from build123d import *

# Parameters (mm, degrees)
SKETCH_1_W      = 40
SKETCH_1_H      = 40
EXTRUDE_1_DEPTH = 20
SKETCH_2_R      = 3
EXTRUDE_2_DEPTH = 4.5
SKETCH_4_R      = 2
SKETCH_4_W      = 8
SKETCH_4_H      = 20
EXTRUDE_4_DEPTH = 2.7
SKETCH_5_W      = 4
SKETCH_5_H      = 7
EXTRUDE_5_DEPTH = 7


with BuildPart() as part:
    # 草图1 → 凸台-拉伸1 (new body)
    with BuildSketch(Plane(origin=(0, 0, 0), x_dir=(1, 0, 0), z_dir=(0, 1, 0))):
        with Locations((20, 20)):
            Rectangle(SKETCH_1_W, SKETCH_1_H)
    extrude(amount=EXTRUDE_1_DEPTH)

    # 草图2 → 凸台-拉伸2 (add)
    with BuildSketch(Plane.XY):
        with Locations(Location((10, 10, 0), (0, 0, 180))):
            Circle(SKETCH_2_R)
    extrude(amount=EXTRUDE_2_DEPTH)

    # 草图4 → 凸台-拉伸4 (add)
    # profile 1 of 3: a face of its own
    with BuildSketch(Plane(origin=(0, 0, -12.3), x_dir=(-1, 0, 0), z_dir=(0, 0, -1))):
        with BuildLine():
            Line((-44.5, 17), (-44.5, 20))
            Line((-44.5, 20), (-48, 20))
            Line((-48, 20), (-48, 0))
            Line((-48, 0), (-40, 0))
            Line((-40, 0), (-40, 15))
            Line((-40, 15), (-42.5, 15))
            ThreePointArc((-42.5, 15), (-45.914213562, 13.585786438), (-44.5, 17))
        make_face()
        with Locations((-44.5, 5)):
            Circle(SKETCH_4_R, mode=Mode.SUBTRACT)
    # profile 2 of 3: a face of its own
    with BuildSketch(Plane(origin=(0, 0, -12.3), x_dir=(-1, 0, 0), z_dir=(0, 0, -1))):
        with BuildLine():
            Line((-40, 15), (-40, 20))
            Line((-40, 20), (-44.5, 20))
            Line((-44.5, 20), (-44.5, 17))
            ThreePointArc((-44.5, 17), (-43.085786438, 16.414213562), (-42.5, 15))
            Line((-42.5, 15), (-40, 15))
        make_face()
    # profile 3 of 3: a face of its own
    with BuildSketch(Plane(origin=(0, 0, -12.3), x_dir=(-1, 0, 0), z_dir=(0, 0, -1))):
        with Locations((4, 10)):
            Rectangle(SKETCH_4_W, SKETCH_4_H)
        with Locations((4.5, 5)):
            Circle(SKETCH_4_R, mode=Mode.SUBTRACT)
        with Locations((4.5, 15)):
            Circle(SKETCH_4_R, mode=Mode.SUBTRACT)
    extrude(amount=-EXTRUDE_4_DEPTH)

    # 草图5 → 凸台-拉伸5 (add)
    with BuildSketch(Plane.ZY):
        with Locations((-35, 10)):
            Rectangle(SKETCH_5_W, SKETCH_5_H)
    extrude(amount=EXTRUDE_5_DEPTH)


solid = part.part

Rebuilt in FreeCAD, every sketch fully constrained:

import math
import FreeCAD as App
import Part
import Sketcher
Q = App.Units.Quantity


def add_polygon(sketch, points):
    """Adds a closed chain of lines whose ends are joined by coincident constraints."""
    first, n = sketch.GeometryCount, len(points)
    for a, b in zip(points, points[1:] + points[:1]):
        sketch.addGeometry(Part.LineSegment(App.Vector(*a, 0), App.Vector(*b, 0)), False)
    for i in range(n):
        sketch.addConstraint(Sketcher.Constraint("Coincident", first + i, 2, first + (i + 1) % n, 1))

doc = App.newDocument("Part")
body = doc.addObject("PartDesign::Body", "Body")

# Sketch on XZ plane
sketch1 = doc.addObject("Sketcher::SketchObject", "Sketch")
body.addObject(sketch1)
sketch1.AttachmentSupport = (doc.XZ_Plane, [""])
sketch1.MapMode = "FlatFace"
add_polygon(sketch1, [(0, -40), (0, 0), (40, 0), (40, -40)])  # lines 0-3
sketch1.addConstraint([
    Sketcher.Constraint("Vertical", 0),
    Sketcher.Constraint("Horizontal", 1),
    Sketcher.Constraint("Vertical", 2),
    Sketcher.Constraint("Horizontal", 3),
    Sketcher.Constraint("Coincident", 0, 2, -1, 1),
    Sketcher.Constraint("Equal", 3, 0),
    Sketcher.Constraint("DistanceX", 1, 1, 1, 2, Q("40 mm")),
])
pad1 = doc.addObject("PartDesign::Pad", "Pad")
body.addObject(pad1)
pad1.Profile = sketch1
pad1.Length = 20
pad1.Reversed = True

# Sketch on XY plane
sketch2 = doc.addObject("Sketcher::SketchObject", "Sketch001")
body.addObject(sketch2)
sketch2.AttachmentSupport = (doc.XY_Plane, [""])
sketch2.MapMode = "FlatFace"
sketch2.addGeometry(Part.Circle(App.Vector(10, 10, 0), App.Vector(0, 0, 1), 3), False)
sketch2.addConstraint([
    Sketcher.Constraint("Diameter", 0, Q("6 mm")),
    Sketcher.Constraint("DistanceX", -1, 1, 0, 3, Q("10 mm")),
    Sketcher.Constraint("DistanceY", -1, 1, 0, 3, Q("10 mm")),
])
pad2 = doc.addObject("PartDesign::Pad", "Pad001")
body.addObject(pad2)
pad2.Profile = sketch2
pad2.Length = 4.5

# Sketch on XY plane
sketch3 = doc.addObject("Sketcher::SketchObject", "Sketch002")
body.addObject(sketch3)
sketch3.AttachmentSupport = (doc.XY_Plane, [""])
sketch3.MapMode = "FlatFace"
sketch3.AttachmentOffset = App.Placement(App.Vector(0, 0, -12.3), App.Rotation())
add_polygon(sketch3, [(48, 20), (48, 0), (40, 0), (40, 20)])  # lines 0-3
sketch3.addGeometry(Part.ArcOfCircle(Part.Circle(App.Vector(44.5, 15, 0), App.Vector(0, 0, 1), 2), math.radians(180), math.radians(450)), False)  # 4
sketch3.addGeometry(Part.ArcOfCircle(Part.Circle(App.Vector(44.5, 15, 0), App.Vector(0, 0, 1), 2), math.radians(90), math.radians(180)), False)  # 5
sketch3.addGeometry(Part.Circle(App.Vector(44.5, 5, 0), App.Vector(0, 0, 1), 2), False)  # 6
add_polygon(sketch3, [(0, 20), (0, 0), (-8, 0), (-8, 20)])  # lines 7-10
sketch3.addGeometry(Part.Circle(App.Vector(-4.5, 5, 0), App.Vector(0, 0, 1), 2), False)  # 11
sketch3.addGeometry(Part.Circle(App.Vector(-4.5, 15, 0), App.Vector(0, 0, 1), 2), False)  # 12
sketch3.addConstraint([
    Sketcher.Constraint("Tangent", 4, 1, 5, 2),
    Sketcher.Constraint("Coincident", 5, 1, 4, 2),
    Sketcher.Constraint("Vertical", 0),
    Sketcher.Constraint("Horizontal", 1),
    Sketcher.Constraint("Vertical", 2),
    Sketcher.Constraint("Horizontal", 3),
    Sketcher.Constraint("Vertical", 7),
    Sketcher.Constraint("Horizontal", 8),
    Sketcher.Constraint("Vertical", 9),
    Sketcher.Constraint("Horizontal", 10),
    Sketcher.Constraint("Coincident", 7, 2, -1, 1),
    Sketcher.Constraint("Equal", 5, 6),
    Sketcher.Constraint("Equal", 6, 11),
    Sketcher.Constraint("Equal", 11, 12),
    Sketcher.Constraint("PointOnObject", 0, 2, -1),
    Sketcher.Constraint("Horizontal", 6, 3, 11, 3),
    Sketcher.Constraint("Horizontal", 5, 3, 12, 3),
    Sketcher.Constraint("Horizontal", 12, 3, 4, 1),
    Sketcher.Constraint("Horizontal", 3, 2, 9, 2),
    Sketcher.Constraint("Vertical", 5, 3, 6, 3),
    Sketcher.Constraint("Vertical", 11, 3, 12, 3),
    Sketcher.Constraint("Vertical", 6, 3, 5, 1),
    Sketcher.Constraint("Equal", 3, 8),
    Sketcher.Constraint("Diameter", 6, Q("4 mm")),
    Sketcher.Constraint("DistanceX", 1, 2, 1, 1, Q("8 mm")),
    Sketcher.Constraint("DistanceY", 0, 2, 0, 1, Q("20 mm")),
    Sketcher.Constraint("DistanceY", -1, 1, 4, 3, Q("15 mm")),
    Sketcher.Constraint("DistanceY", -1, 1, 6, 3, Q("5 mm")),
    Sketcher.Constraint("DistanceX", -1, 1, 0, 2, Q("48 mm")),
    Sketcher.Constraint("DistanceX", 11, 3, 6, 3, Q("49 mm")),
    Sketcher.Constraint("DistanceX", -1, 1, 4, 3, Q("44.5 mm")),
])
pad3 = doc.addObject("PartDesign::Pad", "Pad002")
body.addObject(pad3)
pad3.Profile = sketch3
pad3.Length = 2.7

# Sketch on YZ plane
sketch4 = doc.addObject("Sketcher::SketchObject", "Sketch003")
body.addObject(sketch4)
sketch4.AttachmentSupport = (doc.YZ_Plane, [""])
sketch4.MapMode = "FlatFace"
add_polygon(sketch4, [(13.5, -37), (6.5, -37), (6.5, -33), (13.5, -33)])  # lines 0-3
sketch4.addConstraint([
    Sketcher.Constraint("Horizontal", 0),
    Sketcher.Constraint("Vertical", 1),
    Sketcher.Constraint("Horizontal", 2),
    Sketcher.Constraint("Vertical", 3),
    Sketcher.Constraint("DistanceX", 0, 2, 0, 1, Q("7 mm")),
    Sketcher.Constraint("DistanceY", 1, 1, 1, 2, Q("4 mm")),
    Sketcher.Constraint("DistanceY", 0, 2, -1, 1, Q("37 mm")),
    Sketcher.Constraint("DistanceX", -1, 1, 0, 2, Q("6.5 mm")),
])
pad4 = doc.addObject("PartDesign::Pad", "Pad003")
body.addObject(pad4)
pad4.Profile = sketch4
pad4.Length = 7
pad4.Reversed = True

doc.recompute()
